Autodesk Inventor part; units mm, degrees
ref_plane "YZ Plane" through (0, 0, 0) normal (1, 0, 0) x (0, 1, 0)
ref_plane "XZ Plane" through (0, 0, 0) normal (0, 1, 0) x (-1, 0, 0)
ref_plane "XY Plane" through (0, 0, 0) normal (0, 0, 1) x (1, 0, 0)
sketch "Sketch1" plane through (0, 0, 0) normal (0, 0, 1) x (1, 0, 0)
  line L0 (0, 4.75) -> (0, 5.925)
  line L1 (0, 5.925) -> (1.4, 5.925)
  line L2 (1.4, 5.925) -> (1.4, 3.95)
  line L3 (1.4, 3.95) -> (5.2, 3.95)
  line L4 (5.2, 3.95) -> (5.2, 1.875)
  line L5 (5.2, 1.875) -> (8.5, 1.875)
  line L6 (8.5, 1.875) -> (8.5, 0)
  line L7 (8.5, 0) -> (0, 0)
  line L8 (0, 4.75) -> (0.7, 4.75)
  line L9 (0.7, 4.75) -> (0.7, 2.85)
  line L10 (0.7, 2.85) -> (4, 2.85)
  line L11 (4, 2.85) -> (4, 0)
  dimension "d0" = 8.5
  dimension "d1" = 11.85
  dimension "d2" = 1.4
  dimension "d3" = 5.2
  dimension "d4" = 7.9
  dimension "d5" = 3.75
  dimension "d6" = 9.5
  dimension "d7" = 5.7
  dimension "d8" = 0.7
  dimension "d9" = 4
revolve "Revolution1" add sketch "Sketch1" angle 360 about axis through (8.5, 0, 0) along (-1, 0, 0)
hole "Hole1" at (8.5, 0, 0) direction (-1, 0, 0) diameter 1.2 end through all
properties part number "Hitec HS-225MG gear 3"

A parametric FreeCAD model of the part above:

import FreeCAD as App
import Part
import Sketcher
Q = App.Units.Quantity


def add_polygon(sketch, points):
    """Adds a closed chain of lines whose ends are joined by coincident constraints."""
    first, n = sketch.GeometryCount, len(points)
    for a, b in zip(points, points[1:] + points[:1]):
        sketch.addGeometry(Part.LineSegment(App.Vector(*a, 0), App.Vector(*b, 0)), False)
    for i in range(n):
        sketch.addConstraint(Sketcher.Constraint("Coincident", first + i, 2, first + (i + 1) % n, 1))

doc = App.newDocument("Part")
params = doc.addObject("Spreadsheet::Sheet", "Params")
for row, (alias, value) in enumerate([
    ("sketch1_width", "0.7 mm"),
    ("sketch1_width2", "1.4 mm"),
    ("sketch1_height", "1.9 mm"),
    ("sketch1_height2", "2.85 mm"),
    ("revolution_angle", "360 deg"),
    ("sketch2_diameter", "1.2 mm"),
    ("hole_diameter", "1.2 mm"),
], start=1):
    params.set(f"A{row}", alias)
    params.set(f"B{row}", "=" + value)
    params.setAlias(f"B{row}", alias)

body = doc.addObject("PartDesign::Body", "Body")

sketch1 = body.newObject("Sketcher::SketchObject", "Sketch")
sketch1.AttachmentSupport = (doc.getObject("XY_Plane"), [""])
sketch1.MapMode = "FlatFace"
add_polygon(sketch1, [(0, 5.9), (0, 4.8), (0.7, 4.8), (0.7, 2.9), (4, 2.9), (4, 0), (8.5, 0), (8.5, 1.9), (5.2, 1.9), (5.2, 4), (1.4, 4), (1.4, 5.9)])
sketch1.addConstraint(Sketcher.Constraint("Vertical", 0))
sketch1.addConstraint(Sketcher.Constraint("Horizontal", 1))
sketch1.addConstraint(Sketcher.Constraint("Vertical", 2))
sketch1.addConstraint(Sketcher.Constraint("Horizontal", 3))
sketch1.addConstraint(Sketcher.Constraint("Vertical", 4))
sketch1.addConstraint(Sketcher.Constraint("Horizontal", 5))
sketch1.addConstraint(Sketcher.Constraint("Vertical", 6))
sketch1.addConstraint(Sketcher.Constraint("Horizontal", 7))
sketch1.addConstraint(Sketcher.Constraint("Vertical", 8))
sketch1.addConstraint(Sketcher.Constraint("Horizontal", 9))
sketch1.addConstraint(Sketcher.Constraint("Vertical", 10))
sketch1.addConstraint(Sketcher.Constraint("Horizontal", 11))
sketch1.addConstraint(Sketcher.Constraint("PointOnObject", 0, 2, -2))
sketch1.addConstraint(Sketcher.Constraint("PointOnObject", 4, 2, -1))
sketch1.addConstraint(Sketcher.Constraint("Equal", 3, 7))
sketch1.addConstraint(Sketcher.Constraint("DistanceX", 1, 1, 1, 2, Q("0.7 mm")))
sketch1.addConstraint(Sketcher.Constraint("DistanceX", 11, 2, 11, 1, Q("1.4 mm")))
sketch1.addConstraint(Sketcher.Constraint("DistanceX", -1, 1, 3, 2, Q("4 mm")))
sketch1.addConstraint(Sketcher.Constraint("DistanceX", -1, 1, 5, 2, Q("8.5 mm")))
sketch1.addConstraint(Sketcher.Constraint("DistanceY", 2, 2, 2, 1, Q("1.9 mm")))
sketch1.addConstraint(Sketcher.Constraint("DistanceY", 4, 2, 4, 1, Q("2.85 mm")))
sketch1.addConstraint(Sketcher.Constraint("DistanceY", 3, 2, 8, 2, Q("1.1 mm")))
sketch1.addConstraint(Sketcher.Constraint("DistanceY", 0, 2, 0, 1, Q("1.175 mm")))
sketch1.addConstraint(Sketcher.Constraint("DistanceY", 6, 1, 6, 2, Q("1.875 mm")))
sketch1.setExpression("Constraints[27]", "Params.sketch1_width")
sketch1.setExpression("Constraints[28]", "Params.sketch1_width2")
sketch1.setExpression("Constraints[31]", "Params.sketch1_height")
sketch1.setExpression("Constraints[32]", "Params.sketch1_height2")
revolution = body.newObject("PartDesign::Revolution", "Revolution")
revolution.Profile = sketch1
revolution.ReferenceAxis = (sketch1, ["H_Axis"])
revolution.setExpression("Angle", "Params.revolution_angle")

sketch2 = body.newObject("Sketcher::SketchObject", "Sketch001")
sketch2.AttachmentSupport = (doc.getObject("YZ_Plane"), [""])
sketch2.MapMode = "FlatFace"
sketch2.AttachmentOffset = App.Placement(App.Vector(0, 0, 8.5), App.Rotation())
sketch2.addGeometry(Part.Circle(App.Vector(0, 0, 0), App.Vector(0, 0, 1), 0.6), False)
sketch2.addConstraint(Sketcher.Constraint("Coincident", 0, 3, -1, 1))
sketch2.addConstraint(Sketcher.Constraint("Diameter", 0, Q("1.2 mm")))
sketch2.setExpression("Constraints[1]", "Params.sketch2_diameter")
doc.recompute()
hole = body.newObject("PartDesign::Hole", "Hole")
hole.Profile = sketch2
hole.ThreadType = "None"
hole.setExpression("Diameter", "Params.hole_diameter")
hole.DepthType = "ThroughAll"

doc.recompute()
